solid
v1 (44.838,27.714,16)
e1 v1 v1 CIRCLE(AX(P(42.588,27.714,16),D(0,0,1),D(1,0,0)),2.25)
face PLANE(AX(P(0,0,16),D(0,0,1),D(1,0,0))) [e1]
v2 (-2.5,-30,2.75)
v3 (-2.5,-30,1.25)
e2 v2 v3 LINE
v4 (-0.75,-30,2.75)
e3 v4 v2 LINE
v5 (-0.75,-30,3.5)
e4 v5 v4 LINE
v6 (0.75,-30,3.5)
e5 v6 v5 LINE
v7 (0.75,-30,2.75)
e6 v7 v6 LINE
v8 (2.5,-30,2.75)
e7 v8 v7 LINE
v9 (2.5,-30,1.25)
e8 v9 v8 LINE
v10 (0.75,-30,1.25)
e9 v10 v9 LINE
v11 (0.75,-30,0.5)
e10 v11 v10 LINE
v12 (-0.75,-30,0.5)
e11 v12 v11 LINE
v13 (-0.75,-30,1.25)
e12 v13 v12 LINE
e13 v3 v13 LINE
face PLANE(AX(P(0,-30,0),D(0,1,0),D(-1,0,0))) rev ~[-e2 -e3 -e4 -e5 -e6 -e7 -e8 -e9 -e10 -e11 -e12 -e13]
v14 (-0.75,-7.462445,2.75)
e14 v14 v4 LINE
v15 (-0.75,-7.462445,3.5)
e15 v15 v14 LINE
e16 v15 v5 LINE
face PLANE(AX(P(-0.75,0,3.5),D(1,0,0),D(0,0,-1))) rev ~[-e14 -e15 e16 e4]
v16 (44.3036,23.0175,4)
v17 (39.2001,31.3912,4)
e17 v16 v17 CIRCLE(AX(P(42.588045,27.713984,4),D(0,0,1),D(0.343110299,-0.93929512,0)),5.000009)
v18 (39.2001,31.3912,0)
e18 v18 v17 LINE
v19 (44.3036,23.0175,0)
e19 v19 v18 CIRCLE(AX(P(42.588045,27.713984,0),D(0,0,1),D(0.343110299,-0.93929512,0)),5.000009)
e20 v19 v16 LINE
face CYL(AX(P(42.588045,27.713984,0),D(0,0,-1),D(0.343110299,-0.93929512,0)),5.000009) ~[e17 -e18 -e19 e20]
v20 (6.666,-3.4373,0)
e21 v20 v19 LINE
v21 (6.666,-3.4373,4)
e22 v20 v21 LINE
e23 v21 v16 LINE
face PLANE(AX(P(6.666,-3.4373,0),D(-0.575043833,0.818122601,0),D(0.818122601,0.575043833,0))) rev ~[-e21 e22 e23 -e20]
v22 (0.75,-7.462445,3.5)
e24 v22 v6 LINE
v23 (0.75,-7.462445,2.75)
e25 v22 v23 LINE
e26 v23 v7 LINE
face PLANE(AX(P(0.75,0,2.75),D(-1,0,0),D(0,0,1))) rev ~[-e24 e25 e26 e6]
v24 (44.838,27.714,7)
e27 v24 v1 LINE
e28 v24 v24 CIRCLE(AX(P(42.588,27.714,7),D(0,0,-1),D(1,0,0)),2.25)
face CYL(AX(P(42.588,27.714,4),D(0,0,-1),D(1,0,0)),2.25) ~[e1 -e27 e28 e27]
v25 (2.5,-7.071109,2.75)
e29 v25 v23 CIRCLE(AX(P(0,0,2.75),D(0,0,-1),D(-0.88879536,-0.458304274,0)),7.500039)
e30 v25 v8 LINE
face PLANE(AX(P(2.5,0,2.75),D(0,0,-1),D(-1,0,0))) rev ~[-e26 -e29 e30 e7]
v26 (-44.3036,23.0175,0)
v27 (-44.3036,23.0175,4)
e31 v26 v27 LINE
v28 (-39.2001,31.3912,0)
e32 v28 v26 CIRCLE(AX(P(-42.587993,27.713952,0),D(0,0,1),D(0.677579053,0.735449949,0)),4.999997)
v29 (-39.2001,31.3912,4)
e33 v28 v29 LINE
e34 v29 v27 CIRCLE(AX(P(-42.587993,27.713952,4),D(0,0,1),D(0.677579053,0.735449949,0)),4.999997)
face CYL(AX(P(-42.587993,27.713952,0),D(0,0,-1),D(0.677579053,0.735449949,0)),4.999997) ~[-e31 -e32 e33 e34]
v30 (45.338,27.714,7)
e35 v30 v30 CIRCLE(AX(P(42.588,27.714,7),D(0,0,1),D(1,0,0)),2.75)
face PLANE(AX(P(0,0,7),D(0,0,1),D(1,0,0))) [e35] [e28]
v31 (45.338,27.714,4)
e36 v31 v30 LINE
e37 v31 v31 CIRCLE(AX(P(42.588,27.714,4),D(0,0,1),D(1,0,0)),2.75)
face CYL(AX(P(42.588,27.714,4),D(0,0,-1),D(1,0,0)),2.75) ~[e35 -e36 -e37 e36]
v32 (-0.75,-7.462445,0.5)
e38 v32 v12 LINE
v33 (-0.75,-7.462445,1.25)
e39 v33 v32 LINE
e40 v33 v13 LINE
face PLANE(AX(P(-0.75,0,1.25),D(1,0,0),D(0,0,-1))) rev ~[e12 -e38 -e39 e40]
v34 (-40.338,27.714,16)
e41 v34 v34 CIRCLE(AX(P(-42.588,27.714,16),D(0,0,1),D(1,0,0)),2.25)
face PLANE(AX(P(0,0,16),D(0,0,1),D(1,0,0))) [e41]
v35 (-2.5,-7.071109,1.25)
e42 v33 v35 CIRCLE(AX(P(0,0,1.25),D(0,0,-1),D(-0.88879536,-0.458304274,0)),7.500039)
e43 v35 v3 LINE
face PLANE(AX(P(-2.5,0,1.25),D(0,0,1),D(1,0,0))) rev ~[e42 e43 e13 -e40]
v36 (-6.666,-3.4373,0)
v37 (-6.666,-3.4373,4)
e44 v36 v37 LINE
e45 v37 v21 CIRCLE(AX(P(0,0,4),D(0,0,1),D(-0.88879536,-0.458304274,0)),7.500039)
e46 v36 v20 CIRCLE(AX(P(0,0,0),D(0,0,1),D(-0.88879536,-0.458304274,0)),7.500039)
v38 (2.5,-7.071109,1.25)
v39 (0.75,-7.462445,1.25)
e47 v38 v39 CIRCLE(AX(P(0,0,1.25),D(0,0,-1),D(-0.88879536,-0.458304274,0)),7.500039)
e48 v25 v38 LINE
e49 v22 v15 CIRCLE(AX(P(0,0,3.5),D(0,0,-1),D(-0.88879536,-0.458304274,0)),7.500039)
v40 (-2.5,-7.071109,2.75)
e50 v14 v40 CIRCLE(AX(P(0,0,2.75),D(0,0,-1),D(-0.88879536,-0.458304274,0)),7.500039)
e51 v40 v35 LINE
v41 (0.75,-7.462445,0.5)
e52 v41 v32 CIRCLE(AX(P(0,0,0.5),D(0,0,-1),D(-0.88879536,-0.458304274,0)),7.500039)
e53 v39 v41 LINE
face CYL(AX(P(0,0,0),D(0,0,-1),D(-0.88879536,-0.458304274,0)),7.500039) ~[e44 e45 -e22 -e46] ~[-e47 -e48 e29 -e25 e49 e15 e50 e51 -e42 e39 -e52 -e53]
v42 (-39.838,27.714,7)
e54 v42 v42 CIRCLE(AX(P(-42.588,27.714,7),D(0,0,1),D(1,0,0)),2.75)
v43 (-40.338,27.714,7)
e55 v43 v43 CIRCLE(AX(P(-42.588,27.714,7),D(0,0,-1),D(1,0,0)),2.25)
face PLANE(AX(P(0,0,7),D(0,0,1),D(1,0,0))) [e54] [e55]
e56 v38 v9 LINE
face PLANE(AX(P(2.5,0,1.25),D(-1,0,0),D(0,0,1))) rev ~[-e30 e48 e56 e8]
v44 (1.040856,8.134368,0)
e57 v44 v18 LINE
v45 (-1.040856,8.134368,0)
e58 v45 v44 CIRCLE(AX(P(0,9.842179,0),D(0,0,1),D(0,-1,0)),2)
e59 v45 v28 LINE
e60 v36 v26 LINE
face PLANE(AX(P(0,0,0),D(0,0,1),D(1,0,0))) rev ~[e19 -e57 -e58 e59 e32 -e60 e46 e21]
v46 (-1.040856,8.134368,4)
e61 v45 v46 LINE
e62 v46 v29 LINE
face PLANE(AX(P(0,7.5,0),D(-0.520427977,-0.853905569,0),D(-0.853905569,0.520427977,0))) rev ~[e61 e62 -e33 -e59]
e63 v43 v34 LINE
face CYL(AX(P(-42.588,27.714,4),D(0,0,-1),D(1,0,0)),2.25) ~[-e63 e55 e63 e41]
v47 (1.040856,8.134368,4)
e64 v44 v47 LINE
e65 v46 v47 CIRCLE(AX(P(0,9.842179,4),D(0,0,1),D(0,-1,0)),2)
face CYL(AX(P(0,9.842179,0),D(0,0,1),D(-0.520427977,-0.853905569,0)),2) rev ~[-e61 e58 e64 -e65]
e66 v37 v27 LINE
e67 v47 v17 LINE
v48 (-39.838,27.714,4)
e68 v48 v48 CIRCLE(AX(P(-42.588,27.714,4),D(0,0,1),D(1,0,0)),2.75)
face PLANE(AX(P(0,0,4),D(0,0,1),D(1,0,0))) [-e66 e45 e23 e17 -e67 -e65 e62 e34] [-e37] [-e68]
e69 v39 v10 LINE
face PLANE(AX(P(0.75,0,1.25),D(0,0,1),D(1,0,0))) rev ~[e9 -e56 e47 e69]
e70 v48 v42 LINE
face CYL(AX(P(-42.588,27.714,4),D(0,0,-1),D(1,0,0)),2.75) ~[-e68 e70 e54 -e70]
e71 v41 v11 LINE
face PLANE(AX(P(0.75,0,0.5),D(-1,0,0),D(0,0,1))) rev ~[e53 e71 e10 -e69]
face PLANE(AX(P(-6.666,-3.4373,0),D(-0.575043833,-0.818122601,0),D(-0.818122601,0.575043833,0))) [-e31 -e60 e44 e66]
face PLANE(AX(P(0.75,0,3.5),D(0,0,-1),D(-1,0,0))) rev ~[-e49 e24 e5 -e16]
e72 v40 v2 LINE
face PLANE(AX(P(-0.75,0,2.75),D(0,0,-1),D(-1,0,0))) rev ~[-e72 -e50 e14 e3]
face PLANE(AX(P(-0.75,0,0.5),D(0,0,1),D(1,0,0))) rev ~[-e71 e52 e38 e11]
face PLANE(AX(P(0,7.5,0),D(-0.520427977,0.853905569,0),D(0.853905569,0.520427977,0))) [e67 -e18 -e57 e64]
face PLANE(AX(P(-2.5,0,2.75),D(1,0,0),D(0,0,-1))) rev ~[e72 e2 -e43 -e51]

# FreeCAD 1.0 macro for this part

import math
import FreeCAD as App
import Part
import Sketcher
Q = App.Units.Quantity


def edges_at(feature, points):
    """Names of the edges that pass closest to the given points."""
    edges = feature.Shape.Edges
    near = lambda p: min(range(len(edges)), key=lambda i: edges[i].distToShape(Part.Vertex(*p))[0])
    return sorted({f"Edge{near(p) + 1}" for p in points})


def add_polygon(sketch, points):
    """Adds a closed chain of lines whose ends are joined by coincident constraints."""
    first, n = sketch.GeometryCount, len(points)
    for a, b in zip(points, points[1:] + points[:1]):
        sketch.addGeometry(Part.LineSegment(App.Vector(*a, 0), App.Vector(*b, 0)), False)
    for i in range(n):
        sketch.addConstraint(Sketcher.Constraint("Coincident", first + i, 2, first + (i + 1) % n, 1))

doc = App.newDocument("Part")
body = doc.addObject("PartDesign::Body", "Body")

# Sketch on XY plane
sketch1 = doc.addObject("Sketcher::SketchObject", "Sketch")
body.addObject(sketch1)
sketch1.AttachmentSupport = (doc.XY_Plane, [""])
sketch1.MapMode = "FlatFace"
sketch1.addGeometry([
    Part.LineSegment(App.Vector(6.7, -3.4, 0), App.Vector(44.3, 23, 0)),  # 0
    Part.ArcOfCircle(Part.Circle(App.Vector(42.6, 27.7, 0), App.Vector(0, 0, 1), 5), math.radians(-70), math.radians(133)),  # 1
    Part.LineSegment(App.Vector(39.2, 31.4, 0), App.Vector(0, 7.5, 0)),  # 2
    Part.LineSegment(App.Vector(0, 7.5, 0), App.Vector(-39.2, 31.4, 0)),  # 3
    Part.ArcOfCircle(Part.Circle(App.Vector(-42.6, 27.7, 0), App.Vector(0, 0, 1), 5), math.radians(47), math.radians(250)),  # 4
    Part.LineSegment(App.Vector(-44.3, 23, 0), App.Vector(-6.7, -3.4, 0)),  # 5
    Part.ArcOfCircle(Part.Circle(App.Vector(0, 0, 0), App.Vector(0, 0, 1), 7.5), math.radians(-153), math.radians(-27)),  # 6
], False)
sketch1.addConstraint([
    Sketcher.Constraint("Coincident", 0, 2, 1, 1),
    Sketcher.Constraint("Coincident", 1, 2, 2, 1),
    Sketcher.Constraint("Coincident", 2, 2, 3, 1),
    Sketcher.Constraint("Coincident", 3, 2, 4, 1),
    Sketcher.Constraint("Coincident", 4, 2, 5, 1),
    Sketcher.Constraint("Coincident", 5, 2, 6, 1),
    Sketcher.Constraint("Coincident", 6, 2, 0, 1),
    Sketcher.Constraint("Coincident", 6, 3, -1, 1),
    Sketcher.Constraint("Equal", 1, 4),
    Sketcher.Constraint("Symmetric", 1, 3, 4, 3, -2),
    Sketcher.Constraint("PointOnObject", 2, 2, -2),
    Sketcher.Constraint("Horizontal", 1, 2, 3, 2),
    Sketcher.Constraint("Horizontal", 0, 2, 4, 2),
    Sketcher.Constraint("Horizontal", 5, 2, 6, 2),
    Sketcher.Constraint("Radius", 1, Q("5 mm")),
    Sketcher.Constraint("Radius", 6, Q("7.5 mm")),
    Sketcher.Constraint("DistanceX", -1, 1, 1, 2, Q("39.2 mm")),
    Sketcher.Constraint("DistanceY", -1, 1, 2, 2, Q("7.5 mm")),
    Sketcher.Constraint("Angle", 2, Q("-148.639 deg")),
    Sketcher.Constraint("DistanceX", -1, 1, 1, 3, Q("42.588 mm")),
    Sketcher.Constraint("DistanceX", 5, 2, -1, 1, Q("6.666 mm")),
    Sketcher.Constraint("Distance", 0, Q("46.0048 mm")),
])
pad1 = doc.addObject("PartDesign::Pad", "Pad")
body.addObject(pad1)
pad1.Profile = sketch1
pad1.Length = 4
doc.recompute()

fillet = doc.addObject("PartDesign::Fillet", "Fillet")
body.addObject(fillet)
fillet.Base = (pad1, edges_at(pad1, [(0, 7.5, 2)]))
fillet.Radius = 2

# Sketch on XY plane
sketch2 = doc.addObject("Sketcher::SketchObject", "Sketch001")
body.addObject(sketch2)
sketch2.AttachmentSupport = (doc.XY_Plane, [""])
sketch2.MapMode = "FlatFace"
sketch2.AttachmentOffset = App.Placement(App.Vector(0, 0, 4), App.Rotation())
sketch2.addGeometry([
    Part.Circle(App.Vector(42.6, 27.7, 0), App.Vector(0, 0, 1), 2.2),
    Part.Circle(App.Vector(-42.6, 27.7, 0), App.Vector(0, 0, 1), 2.2),
], False)
sketch2.addConstraint([
    Sketcher.Constraint("Equal", 0, 1),
    Sketcher.Constraint("Symmetric", 0, 3, 1, 3, -2),
    Sketcher.Constraint("Diameter", 0, Q("4.5 mm")),
    Sketcher.Constraint("DistanceX", -1, 1, 0, 3, Q("42.588 mm")),
    Sketcher.Constraint("DistanceY", -1, 1, 0, 3, Q("27.714 mm")),
])
pad2 = doc.addObject("PartDesign::Pad", "Pad001")
body.addObject(pad2)
pad2.Profile = sketch2
pad2.Length = 12

# Sketch on XY plane
sketch3 = doc.addObject("Sketcher::SketchObject", "Sketch002")
body.addObject(sketch3)
sketch3.AttachmentSupport = (doc.XY_Plane, [""])
sketch3.MapMode = "FlatFace"
sketch3.AttachmentOffset = App.Placement(App.Vector(0, 0, 4), App.Rotation())
sketch3.addGeometry([
    Part.Circle(App.Vector(42.6, 27.7, 0), App.Vector(0, 0, 1), 2.8),
    Part.Circle(App.Vector(-42.6, 27.7, 0), App.Vector(0, 0, 1), 2.8),
], False)
sketch3.addConstraint([
    Sketcher.Constraint("Equal", 0, 1),
    Sketcher.Constraint("Symmetric", 0, 3, 1, 3, -2),
    Sketcher.Constraint("Diameter", 0, Q("5.5 mm")),
    Sketcher.Constraint("DistanceX", -1, 1, 0, 3, Q("42.588 mm")),
    Sketcher.Constraint("DistanceY", -1, 1, 0, 3, Q("27.714 mm")),
])
pad3 = doc.addObject("PartDesign::Pad", "Pad002")
body.addObject(pad3)
pad3.Profile = sketch3
pad3.Length = 3

# Sketch on XZ plane
sketch4 = doc.addObject("Sketcher::SketchObject", "Sketch003")
body.addObject(sketch4)
sketch4.AttachmentSupport = (doc.XZ_Plane, [""])
sketch4.MapMode = "FlatFace"
add_polygon(sketch4, [(-0.8, 1.2), (-2.5, 1.2), (-2.5, 2.8), (-0.8, 2.8), (-0.8, 3.5), (0.8, 3.5), (0.8, 2.8), (2.5, 2.8), (2.5, 1.2), (0.8, 1.2), (0.8, 0.5), (-0.8, 0.5)])  # lines 0-11
sketch4.addConstraint([
    Sketcher.Constraint("Horizontal", 0),
    Sketcher.Constraint("Vertical", 1),
    Sketcher.Constraint("Horizontal", 2),
    Sketcher.Constraint("Vertical", 3),
    Sketcher.Constraint("Horizontal", 4),
    Sketcher.Constraint("Vertical", 5),
    Sketcher.Constraint("Horizontal", 6),
    Sketcher.Constraint("Vertical", 7),
    Sketcher.Constraint("Horizontal", 8),
    Sketcher.Constraint("Vertical", 9),
    Sketcher.Constraint("Horizontal", 10),
    Sketcher.Constraint("Vertical", 11),
    Sketcher.Constraint("Symmetric", 2, 2, 5, 2, -2),
    Sketcher.Constraint("Symmetric", 0, 2, 7, 2, -2),
    Sketcher.Constraint("Vertical", 5, 2, 8, 2),
    Sketcher.Constraint("Vertical", 3, 2, 10, 2),
    Sketcher.Constraint("Equal", 10, 1),
    Sketcher.Constraint("Equal", 5, 9),
    Sketcher.Constraint("DistanceX", 4, 1, 4, 2, Q("1.5 mm")),
    Sketcher.Constraint("DistanceX", 1, 2, 6, 2, Q("5 mm")),
    Sketcher.Constraint("DistanceY", 3, 1, 3, 2, Q("0.75 mm")),
    Sketcher.Constraint("DistanceY", -1, 1, 3, 2, Q("3.5 mm")),
])
pad4 = doc.addObject("PartDesign::Pad", "Pad003")
body.addObject(pad4)
pad4.Profile = sketch4
pad4.Length = 30

doc.recompute()
